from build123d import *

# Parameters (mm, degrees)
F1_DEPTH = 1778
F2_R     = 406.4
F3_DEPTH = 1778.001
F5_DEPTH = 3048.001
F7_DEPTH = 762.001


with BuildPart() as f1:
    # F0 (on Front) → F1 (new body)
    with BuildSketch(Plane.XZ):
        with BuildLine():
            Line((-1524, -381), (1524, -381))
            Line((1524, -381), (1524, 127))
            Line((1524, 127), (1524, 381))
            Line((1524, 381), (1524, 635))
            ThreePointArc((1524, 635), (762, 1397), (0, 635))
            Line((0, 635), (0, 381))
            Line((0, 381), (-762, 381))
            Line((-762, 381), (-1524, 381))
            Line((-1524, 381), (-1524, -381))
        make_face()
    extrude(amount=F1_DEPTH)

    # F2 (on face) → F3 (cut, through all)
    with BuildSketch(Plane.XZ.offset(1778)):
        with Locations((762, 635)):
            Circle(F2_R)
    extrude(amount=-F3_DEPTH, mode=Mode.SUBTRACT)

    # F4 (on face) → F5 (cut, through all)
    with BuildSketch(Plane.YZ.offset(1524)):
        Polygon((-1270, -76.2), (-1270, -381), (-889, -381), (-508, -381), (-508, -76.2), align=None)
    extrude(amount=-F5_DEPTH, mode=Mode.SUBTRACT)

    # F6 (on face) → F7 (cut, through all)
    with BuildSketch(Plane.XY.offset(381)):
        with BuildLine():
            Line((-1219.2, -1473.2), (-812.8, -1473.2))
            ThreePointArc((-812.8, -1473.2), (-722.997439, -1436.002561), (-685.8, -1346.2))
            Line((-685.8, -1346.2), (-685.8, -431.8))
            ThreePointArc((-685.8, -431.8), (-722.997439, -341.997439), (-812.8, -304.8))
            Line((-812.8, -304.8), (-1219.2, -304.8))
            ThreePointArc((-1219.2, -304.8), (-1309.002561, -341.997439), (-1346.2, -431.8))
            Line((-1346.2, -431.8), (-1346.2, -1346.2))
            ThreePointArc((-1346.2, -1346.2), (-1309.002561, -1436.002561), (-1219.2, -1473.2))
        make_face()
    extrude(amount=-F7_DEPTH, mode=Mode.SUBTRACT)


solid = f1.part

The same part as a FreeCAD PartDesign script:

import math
import FreeCAD as App
import Part
import Sketcher
from FreeCAD import Vector
Q = App.Units.Quantity

doc = App.newDocument("Part")
body = doc.addObject("PartDesign::Body", "Body")

# Sketch on XZ plane
sketch1 = doc.addObject("Sketcher::SketchObject", "Sketch")
body.addObject(sketch1)
sketch1.AttachmentSupport = (doc.XZ_Plane, [""])
sketch1.MapMode = "FlatFace"
sketch1.addGeometry([
    Part.LineSegment(Vector(-1524, -381, 0), Vector(1524, -381, 0)),  # 0
    Part.LineSegment(Vector(1524, -381, 0), Vector(1524, 635, 0)),  # 1
    Part.ArcOfCircle(Part.Circle(Vector(762, 635, 0), Vector(0, 0, 1), 762), math.radians(0), math.radians(180)),  # 2
    Part.LineSegment(Vector(0, 635, 0), Vector(0, 381, 0)),  # 3
    Part.LineSegment(Vector(0, 381, 0), Vector(-1524, 381, 0)),  # 4
    Part.LineSegment(Vector(-1524, 381, 0), Vector(-1524, -381, 0)),  # 5
], False)
sketch1.addConstraint([
    Sketcher.Constraint("Coincident", 0, 2, 1, 1),
    Sketcher.Constraint("Tangent", 1, 2, 2, 1),
    Sketcher.Constraint("Tangent", 2, 2, 3, 1),
    Sketcher.Constraint("Coincident", 3, 2, 4, 1),
    Sketcher.Constraint("Coincident", 4, 2, 5, 1),
    Sketcher.Constraint("Coincident", 5, 2, 0, 1),
    Sketcher.Constraint("Horizontal", 0),
    Sketcher.Constraint("Vertical", 1),
    Sketcher.Constraint("Vertical", 3),
    Sketcher.Constraint("Horizontal", 4),
    Sketcher.Constraint("Vertical", 5),
    Sketcher.Constraint("Symmetric", 0, 2, 4, 2, -1, 1),
    Sketcher.Constraint("PointOnObject", 2, 2, -2),
    Sketcher.Constraint("Radius", 2, Q("30 in")),
    Sketcher.Constraint("DistanceY", 1, 1, 1, 2, Q("40 in")),
    Sketcher.Constraint("DistanceY", 3, 2, 3, 1, Q("10 in")),
])
pad1 = doc.addObject("PartDesign::Pad", "Pad")
body.addObject(pad1)
pad1.Profile = sketch1
pad1.Length = Q("70 in")

# Sketch on XZ plane
sketch2 = doc.addObject("Sketcher::SketchObject", "Sketch001")
body.addObject(sketch2)
sketch2.AttachmentSupport = (doc.XZ_Plane, [""])
sketch2.MapMode = "FlatFace"
sketch2.AttachmentOffset = App.Placement(Vector(0, 0, 70 * 25.4), App.Rotation())
sketch2.addGeometry(Part.Circle(Vector(762, 635, 0), Vector(0, 0, 1), 406), False)
sketch2.addConstraint([
    Sketcher.Constraint("Diameter", 0, Q("32 in")),
    Sketcher.Constraint("DistanceX", -1, 1, 0, 3, Q("30 in")),
    Sketcher.Constraint("DistanceY", -1, 1, 0, 3, Q("25 in")),
])
pocket1 = doc.addObject("PartDesign::Pocket", "Pocket")
body.addObject(pocket1)
pocket1.Profile = sketch2
pocket1.Type = "ThroughAll"

# Sketch on YZ plane
sketch3 = doc.addObject("Sketcher::SketchObject", "Sketch002")
body.addObject(sketch3)
sketch3.AttachmentSupport = (doc.YZ_Plane, [""])
sketch3.MapMode = "FlatFace"
sketch3.AttachmentOffset = App.Placement(Vector(0, 0, 60 * 25.4), App.Rotation())
sketch3.addGeometry([
    Part.LineSegment(Vector(-1270, -76, 0), Vector(-1270, -381, 0)),
    Part.LineSegment(Vector(-1270, -381, 0), Vector(-508, -381, 0)),
    Part.LineSegment(Vector(-508, -381, 0), Vector(-508, -76, 0)),
    Part.LineSegment(Vector(-508, -76, 0), Vector(-1270, -76, 0)),
], False)
sketch3.addConstraint([
    Sketcher.Constraint("Coincident", 0, 2, 1, 1),
    Sketcher.Constraint("Coincident", 1, 2, 2, 1),
    Sketcher.Constraint("Coincident", 2, 2, 3, 1),
    Sketcher.Constraint("Coincident", 3, 2, 0, 1),
    Sketcher.Constraint("Vertical", 0),
    Sketcher.Constraint("Horizontal", 1),
    Sketcher.Constraint("Vertical", 2),
    Sketcher.Constraint("Horizontal", 3),
    Sketcher.Constraint("DistanceX", 1, 1, 1, 2, Q("30 in")),
    Sketcher.Constraint("DistanceY", 0, 2, 0, 1, Q("12 in")),
    Sketcher.Constraint("DistanceX", 0, 2, -1, 1, Q("50 in")),
    Sketcher.Constraint("DistanceY", 0, 2, -1, 1, Q("15 in")),
])
pocket2 = doc.addObject("PartDesign::Pocket", "Pocket001")
body.addObject(pocket2)
pocket2.Profile = sketch3
pocket2.Type = "ThroughAll"

# Sketch on XY plane
sketch4 = doc.addObject("Sketcher::SketchObject", "Sketch003")
body.addObject(sketch4)
sketch4.AttachmentSupport = (doc.XY_Plane, [""])
sketch4.MapMode = "FlatFace"
sketch4.AttachmentOffset = App.Placement(Vector(0, 0, 15 * 25.4), App.Rotation())
sketch4.addGeometry([
    Part.LineSegment(Vector(-1219, -1473, 0), Vector(-813, -1473, 0)),  # 0
    Part.ArcOfCircle(Part.Circle(Vector(-813, -1346, 0), Vector(0, 0, 1), 127), math.radians(-90), math.radians(0)),  # 1
    Part.LineSegment(Vector(-686, -1346, 0), Vector(-686, -432, 0)),  # 2
    Part.ArcOfCircle(Part.Circle(Vector(-813, -432, 0), Vector(0, 0, 1), 127), math.radians(0), math.radians(90)),  # 3
    Part.LineSegment(Vector(-813, -305, 0), Vector(-1219, -305, 0)),  # 4
    Part.ArcOfCircle(Part.Circle(Vector(-1219, -432, 0), Vector(0, 0, 1), 127), math.radians(90), math.radians(180)),  # 5
    Part.LineSegment(Vector(-1346, -432, 0), Vector(-1346, -1346, 0)),  # 6
    Part.ArcOfCircle(Part.Circle(Vector(-1219, -1346, 0), Vector(0, 0, 1), 127), math.radians(-180), math.radians(-90)),  # 7
], False)
sketch4.addConstraint([
    Sketcher.Constraint("Tangent", 0, 2, 1, 1),
    Sketcher.Constraint("Tangent", 1, 2, 2, 1),
    Sketcher.Constraint("Tangent", 2, 2, 3, 1),
    Sketcher.Constraint("Tangent", 3, 2, 4, 1),
    Sketcher.Constraint("Tangent", 4, 2, 5, 1),
    Sketcher.Constraint("Tangent", 5, 2, 6, 1),
    Sketcher.Constraint("Tangent", 6, 2, 7, 1),
    Sketcher.Constraint("Tangent", 7, 2, 0, 1),
    Sketcher.Constraint("Horizontal", 0),
    Sketcher.Constraint("Vertical", 2),
    Sketcher.Constraint("Horizontal", 4),
    Sketcher.Constraint("Vertical", 6),
    Sketcher.Constraint("Equal", 1, 3),
    Sketcher.Constraint("Equal", 3, 5),
    Sketcher.Constraint("Equal", 5, 7),
    Sketcher.Constraint("Radius", 1, Q("5 in")),
    Sketcher.Constraint("DistanceX", 0, 1, 0, 2, Q("16 in")),
    Sketcher.Constraint("DistanceY", 2, 1, 2, 2, Q("36 in")),
    Sketcher.Constraint("DistanceX", 1, 3, -1, 1, Q("32 in")),
    Sketcher.Constraint("DistanceY", 1, 3, -1, 1, Q("53 in")),
])
pocket3 = doc.addObject("PartDesign::Pocket", "Pocket002")
body.addObject(pocket3)
pocket3.Profile = sketch4
pocket3.Type = "ThroughAll"

doc.recompute()
